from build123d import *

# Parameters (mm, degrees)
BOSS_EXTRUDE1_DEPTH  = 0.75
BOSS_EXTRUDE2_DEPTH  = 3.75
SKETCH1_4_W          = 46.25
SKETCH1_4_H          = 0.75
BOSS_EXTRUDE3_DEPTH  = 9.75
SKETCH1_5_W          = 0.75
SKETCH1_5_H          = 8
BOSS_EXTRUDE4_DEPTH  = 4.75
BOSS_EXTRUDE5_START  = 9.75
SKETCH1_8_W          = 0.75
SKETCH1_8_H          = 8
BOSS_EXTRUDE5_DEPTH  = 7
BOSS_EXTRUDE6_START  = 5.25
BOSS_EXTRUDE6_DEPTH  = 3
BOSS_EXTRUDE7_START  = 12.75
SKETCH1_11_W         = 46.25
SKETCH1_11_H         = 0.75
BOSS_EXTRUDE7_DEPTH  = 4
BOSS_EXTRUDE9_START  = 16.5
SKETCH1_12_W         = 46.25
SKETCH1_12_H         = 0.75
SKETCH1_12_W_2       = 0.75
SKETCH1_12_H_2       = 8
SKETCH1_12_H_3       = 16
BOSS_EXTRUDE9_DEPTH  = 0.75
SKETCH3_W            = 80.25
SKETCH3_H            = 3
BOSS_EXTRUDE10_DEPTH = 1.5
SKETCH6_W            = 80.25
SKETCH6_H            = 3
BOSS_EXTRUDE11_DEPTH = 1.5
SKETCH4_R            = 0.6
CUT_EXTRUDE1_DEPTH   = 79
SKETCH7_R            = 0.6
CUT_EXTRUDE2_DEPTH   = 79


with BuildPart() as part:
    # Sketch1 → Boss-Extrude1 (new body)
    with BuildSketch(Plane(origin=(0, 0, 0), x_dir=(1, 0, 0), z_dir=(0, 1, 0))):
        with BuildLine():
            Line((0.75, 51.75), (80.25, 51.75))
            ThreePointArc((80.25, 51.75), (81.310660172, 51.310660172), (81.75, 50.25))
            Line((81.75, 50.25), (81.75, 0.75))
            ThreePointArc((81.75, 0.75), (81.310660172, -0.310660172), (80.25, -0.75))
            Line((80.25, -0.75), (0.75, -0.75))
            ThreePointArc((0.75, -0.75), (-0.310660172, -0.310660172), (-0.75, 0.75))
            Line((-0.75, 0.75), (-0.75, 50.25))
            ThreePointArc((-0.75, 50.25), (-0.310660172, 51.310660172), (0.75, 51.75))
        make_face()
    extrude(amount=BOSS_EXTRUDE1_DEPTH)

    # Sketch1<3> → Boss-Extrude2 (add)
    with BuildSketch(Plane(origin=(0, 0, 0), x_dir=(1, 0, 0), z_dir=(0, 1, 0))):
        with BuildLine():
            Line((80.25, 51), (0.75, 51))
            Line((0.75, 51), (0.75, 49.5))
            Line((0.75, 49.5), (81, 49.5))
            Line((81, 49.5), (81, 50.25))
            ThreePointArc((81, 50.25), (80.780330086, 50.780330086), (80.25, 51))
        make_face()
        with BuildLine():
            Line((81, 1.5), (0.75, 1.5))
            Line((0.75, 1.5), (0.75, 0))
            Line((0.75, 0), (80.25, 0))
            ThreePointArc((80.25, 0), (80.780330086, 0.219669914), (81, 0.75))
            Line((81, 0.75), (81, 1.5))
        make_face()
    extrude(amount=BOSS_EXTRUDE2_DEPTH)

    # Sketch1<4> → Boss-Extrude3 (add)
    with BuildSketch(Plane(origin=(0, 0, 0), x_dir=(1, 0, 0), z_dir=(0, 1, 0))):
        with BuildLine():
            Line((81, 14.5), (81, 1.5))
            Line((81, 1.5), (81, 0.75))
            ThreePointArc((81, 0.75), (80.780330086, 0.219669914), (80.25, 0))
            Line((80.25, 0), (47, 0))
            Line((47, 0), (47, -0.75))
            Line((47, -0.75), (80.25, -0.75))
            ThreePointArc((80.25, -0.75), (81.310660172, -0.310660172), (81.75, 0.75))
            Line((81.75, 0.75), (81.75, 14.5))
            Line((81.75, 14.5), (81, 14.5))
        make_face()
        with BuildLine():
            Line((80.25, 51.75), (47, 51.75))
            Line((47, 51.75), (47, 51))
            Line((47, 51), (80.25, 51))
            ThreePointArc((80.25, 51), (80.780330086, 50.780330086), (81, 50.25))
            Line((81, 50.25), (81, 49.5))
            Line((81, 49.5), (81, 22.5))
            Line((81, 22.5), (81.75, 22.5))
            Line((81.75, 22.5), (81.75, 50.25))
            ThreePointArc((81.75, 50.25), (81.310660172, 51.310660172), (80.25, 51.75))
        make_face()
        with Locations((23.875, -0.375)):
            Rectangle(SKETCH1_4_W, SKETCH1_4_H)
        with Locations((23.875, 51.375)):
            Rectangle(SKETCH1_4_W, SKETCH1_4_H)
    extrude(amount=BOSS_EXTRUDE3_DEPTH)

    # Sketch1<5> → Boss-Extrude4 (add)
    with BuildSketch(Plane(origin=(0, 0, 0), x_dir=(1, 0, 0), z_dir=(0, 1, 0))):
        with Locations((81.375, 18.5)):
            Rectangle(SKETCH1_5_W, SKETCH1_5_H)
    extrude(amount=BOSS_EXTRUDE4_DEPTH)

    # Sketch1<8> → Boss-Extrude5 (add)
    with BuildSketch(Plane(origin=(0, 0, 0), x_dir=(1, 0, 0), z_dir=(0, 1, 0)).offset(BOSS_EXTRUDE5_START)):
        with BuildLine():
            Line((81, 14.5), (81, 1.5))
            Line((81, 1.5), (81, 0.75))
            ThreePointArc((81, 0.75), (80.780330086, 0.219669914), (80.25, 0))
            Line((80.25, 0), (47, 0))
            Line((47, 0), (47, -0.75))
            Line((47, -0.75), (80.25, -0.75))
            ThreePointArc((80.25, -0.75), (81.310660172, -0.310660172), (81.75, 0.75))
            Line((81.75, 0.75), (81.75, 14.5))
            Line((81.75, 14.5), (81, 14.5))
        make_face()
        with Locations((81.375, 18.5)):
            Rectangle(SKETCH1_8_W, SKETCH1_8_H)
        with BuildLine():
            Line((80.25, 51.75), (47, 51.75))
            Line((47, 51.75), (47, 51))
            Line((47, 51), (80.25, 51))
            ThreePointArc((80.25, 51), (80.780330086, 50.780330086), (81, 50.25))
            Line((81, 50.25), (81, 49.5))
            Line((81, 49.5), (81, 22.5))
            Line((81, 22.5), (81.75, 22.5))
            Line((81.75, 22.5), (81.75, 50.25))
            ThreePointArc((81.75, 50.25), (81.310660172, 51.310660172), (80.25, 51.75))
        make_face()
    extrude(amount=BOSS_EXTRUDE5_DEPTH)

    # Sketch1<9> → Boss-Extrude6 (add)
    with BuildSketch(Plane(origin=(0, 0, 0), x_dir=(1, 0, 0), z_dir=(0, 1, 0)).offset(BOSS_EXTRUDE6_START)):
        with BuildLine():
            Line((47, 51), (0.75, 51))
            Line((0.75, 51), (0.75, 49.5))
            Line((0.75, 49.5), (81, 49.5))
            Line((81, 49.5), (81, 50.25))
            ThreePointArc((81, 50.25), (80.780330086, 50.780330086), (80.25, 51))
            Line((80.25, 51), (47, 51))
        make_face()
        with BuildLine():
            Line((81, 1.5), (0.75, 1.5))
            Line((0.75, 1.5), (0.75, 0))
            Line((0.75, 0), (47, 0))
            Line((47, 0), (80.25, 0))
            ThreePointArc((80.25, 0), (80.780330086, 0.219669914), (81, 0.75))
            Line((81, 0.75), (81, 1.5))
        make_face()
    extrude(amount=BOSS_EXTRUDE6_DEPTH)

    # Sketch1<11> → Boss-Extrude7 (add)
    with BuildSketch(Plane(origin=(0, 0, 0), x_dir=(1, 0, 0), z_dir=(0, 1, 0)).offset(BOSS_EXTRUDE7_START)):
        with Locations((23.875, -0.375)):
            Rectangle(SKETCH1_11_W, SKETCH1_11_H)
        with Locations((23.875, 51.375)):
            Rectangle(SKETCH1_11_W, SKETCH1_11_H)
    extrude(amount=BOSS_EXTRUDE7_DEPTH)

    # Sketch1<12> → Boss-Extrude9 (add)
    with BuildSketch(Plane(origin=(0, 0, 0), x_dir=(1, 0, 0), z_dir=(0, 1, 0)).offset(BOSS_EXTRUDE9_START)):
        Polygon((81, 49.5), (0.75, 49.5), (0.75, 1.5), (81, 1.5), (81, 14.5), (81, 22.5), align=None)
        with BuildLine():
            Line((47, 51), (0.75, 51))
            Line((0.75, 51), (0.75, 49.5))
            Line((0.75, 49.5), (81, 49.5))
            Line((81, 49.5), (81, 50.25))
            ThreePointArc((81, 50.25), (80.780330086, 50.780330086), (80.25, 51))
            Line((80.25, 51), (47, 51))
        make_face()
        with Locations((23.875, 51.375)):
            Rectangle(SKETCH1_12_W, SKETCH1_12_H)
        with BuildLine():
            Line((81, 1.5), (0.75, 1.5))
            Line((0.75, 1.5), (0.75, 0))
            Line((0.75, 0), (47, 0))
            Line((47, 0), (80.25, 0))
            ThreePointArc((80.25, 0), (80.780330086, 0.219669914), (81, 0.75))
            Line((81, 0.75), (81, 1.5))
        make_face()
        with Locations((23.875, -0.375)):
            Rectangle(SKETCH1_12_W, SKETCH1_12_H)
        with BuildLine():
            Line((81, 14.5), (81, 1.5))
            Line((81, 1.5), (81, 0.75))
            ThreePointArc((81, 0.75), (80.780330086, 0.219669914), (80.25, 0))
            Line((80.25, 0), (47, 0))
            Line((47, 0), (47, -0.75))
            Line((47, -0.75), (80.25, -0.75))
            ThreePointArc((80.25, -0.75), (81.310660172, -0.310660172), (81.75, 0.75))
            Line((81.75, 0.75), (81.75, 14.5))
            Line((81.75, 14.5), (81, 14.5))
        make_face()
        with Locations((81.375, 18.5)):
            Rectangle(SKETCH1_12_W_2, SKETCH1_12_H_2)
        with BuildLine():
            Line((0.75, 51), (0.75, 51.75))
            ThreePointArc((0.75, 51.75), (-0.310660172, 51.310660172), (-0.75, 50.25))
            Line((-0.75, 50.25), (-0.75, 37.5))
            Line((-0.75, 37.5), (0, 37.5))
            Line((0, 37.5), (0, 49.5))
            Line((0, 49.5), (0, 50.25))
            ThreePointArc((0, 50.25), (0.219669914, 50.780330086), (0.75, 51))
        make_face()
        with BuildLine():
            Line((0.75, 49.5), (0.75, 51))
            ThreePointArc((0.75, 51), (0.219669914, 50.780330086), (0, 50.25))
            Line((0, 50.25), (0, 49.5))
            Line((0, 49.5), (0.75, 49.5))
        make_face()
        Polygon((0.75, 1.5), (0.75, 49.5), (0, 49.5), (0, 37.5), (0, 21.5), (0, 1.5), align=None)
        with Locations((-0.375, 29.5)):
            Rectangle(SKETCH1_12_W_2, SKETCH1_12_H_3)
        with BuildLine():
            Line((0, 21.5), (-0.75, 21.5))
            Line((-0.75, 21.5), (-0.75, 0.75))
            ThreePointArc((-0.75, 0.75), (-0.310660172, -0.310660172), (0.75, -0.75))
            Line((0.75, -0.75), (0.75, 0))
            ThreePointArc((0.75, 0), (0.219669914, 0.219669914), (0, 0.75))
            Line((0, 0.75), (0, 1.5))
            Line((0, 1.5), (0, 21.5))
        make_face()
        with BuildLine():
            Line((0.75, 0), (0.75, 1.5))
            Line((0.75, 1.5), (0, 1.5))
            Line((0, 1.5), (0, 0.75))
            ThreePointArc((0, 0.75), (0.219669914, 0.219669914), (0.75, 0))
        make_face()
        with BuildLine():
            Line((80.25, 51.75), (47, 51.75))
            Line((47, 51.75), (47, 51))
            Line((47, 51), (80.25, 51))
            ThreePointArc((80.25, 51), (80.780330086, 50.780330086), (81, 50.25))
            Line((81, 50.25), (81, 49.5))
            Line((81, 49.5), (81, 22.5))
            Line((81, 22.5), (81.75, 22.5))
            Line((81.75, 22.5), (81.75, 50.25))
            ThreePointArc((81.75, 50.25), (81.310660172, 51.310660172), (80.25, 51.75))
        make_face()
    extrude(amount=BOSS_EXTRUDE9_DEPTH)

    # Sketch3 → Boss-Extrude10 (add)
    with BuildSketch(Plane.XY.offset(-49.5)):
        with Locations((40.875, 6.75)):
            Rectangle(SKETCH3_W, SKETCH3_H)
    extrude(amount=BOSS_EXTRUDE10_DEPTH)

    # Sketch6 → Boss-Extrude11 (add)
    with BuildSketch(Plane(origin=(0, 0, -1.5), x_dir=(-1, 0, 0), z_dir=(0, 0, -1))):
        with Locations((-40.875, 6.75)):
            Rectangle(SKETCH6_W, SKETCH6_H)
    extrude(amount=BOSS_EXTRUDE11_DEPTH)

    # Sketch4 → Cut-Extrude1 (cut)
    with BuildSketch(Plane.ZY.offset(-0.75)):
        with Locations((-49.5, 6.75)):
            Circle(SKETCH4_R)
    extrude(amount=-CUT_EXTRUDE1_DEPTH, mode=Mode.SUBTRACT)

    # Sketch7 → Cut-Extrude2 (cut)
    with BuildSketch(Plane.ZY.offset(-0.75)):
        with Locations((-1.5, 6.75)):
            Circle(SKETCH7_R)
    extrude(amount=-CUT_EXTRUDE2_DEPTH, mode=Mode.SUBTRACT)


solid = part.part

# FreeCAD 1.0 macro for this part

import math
import FreeCAD as App
import Part
import Sketcher
from FreeCAD import Vector
Q = App.Units.Quantity

doc = App.newDocument("Part")
body = doc.addObject("PartDesign::Body", "Body")

# Sketch on XZ plane
sketch1 = body.newObject("Sketcher::SketchObject", "Sketch")
sketch1.AttachmentSupport = (doc.getObject("XZ_Plane"), [""])
sketch1.MapMode = "FlatFace"
sketch1.addGeometry(Part.LineSegment(Vector(80.2, -51.8, 0), Vector(0.8, -51.8, 0)), False)
sketch1.addGeometry(Part.ArcOfCircle(Part.Circle(Vector(0.7, -50.3, 0), Vector(0, 0, 1), 1.5), math.radians(180), math.radians(270)), False)
sketch1.addGeometry(Part.LineSegment(Vector(-0.8, -50.2, 0), Vector(-0.8, -0.8, 0)), False)
sketch1.addGeometry(Part.ArcOfCircle(Part.Circle(Vector(0.7, -0.7, 0), Vector(0, 0, 1), 1.5), math.radians(90), math.radians(180)), False)
sketch1.addGeometry(Part.LineSegment(Vector(0.8, 0.8, 0), Vector(80.2, 0.8, 0)), False)
sketch1.addGeometry(Part.ArcOfCircle(Part.Circle(Vector(80.3, -0.7, 0), Vector(0, 0, 1), 1.5), math.radians(0), math.radians(90)), False)
sketch1.addGeometry(Part.LineSegment(Vector(81.8, -0.8, 0), Vector(81.8, -50.2, 0)), False)
sketch1.addGeometry(Part.ArcOfCircle(Part.Circle(Vector(80.3, -50.3, 0), Vector(0, 0, 1), 1.5), math.radians(-90), math.radians(0)), False)
sketch1.addConstraint(Sketcher.Constraint("Tangent", 0, 2, 1, 2))
sketch1.addConstraint(Sketcher.Constraint("Tangent", 1, 1, 2, 1))
sketch1.addConstraint(Sketcher.Constraint("Tangent", 2, 2, 3, 2))
sketch1.addConstraint(Sketcher.Constraint("Tangent", 3, 1, 4, 1))
sketch1.addConstraint(Sketcher.Constraint("Tangent", 4, 2, 5, 2))
sketch1.addConstraint(Sketcher.Constraint("Tangent", 5, 1, 6, 1))
sketch1.addConstraint(Sketcher.Constraint("Tangent", 6, 2, 7, 2))
sketch1.addConstraint(Sketcher.Constraint("Tangent", 7, 1, 0, 1))
sketch1.addConstraint(Sketcher.Constraint("Horizontal", 0))
sketch1.addConstraint(Sketcher.Constraint("Vertical", 2))
sketch1.addConstraint(Sketcher.Constraint("Horizontal", 4))
sketch1.addConstraint(Sketcher.Constraint("Vertical", 6))
sketch1.addConstraint(Sketcher.Constraint("Equal", 1, 3))
sketch1.addConstraint(Sketcher.Constraint("Equal", 3, 5))
sketch1.addConstraint(Sketcher.Constraint("Equal", 5, 7))
sketch1.addConstraint(Sketcher.Constraint("Symmetric", 2, 2, 3, 1, -1, 1))
sketch1.addConstraint(Sketcher.Constraint("Radius", 1, Q("1.5 mm")))
sketch1.addConstraint(Sketcher.Constraint("DistanceX", 0, 2, 0, 1, Q("79.5 mm")))
sketch1.addConstraint(Sketcher.Constraint("DistanceY", 2, 1, 2, 2, Q("49.5 mm")))
pad1 = body.newObject("PartDesign::Pad", "Pad")
pad1.Profile = sketch1
pad1.Length = 0.75
pad1.Reversed = True

# Sketch on XZ plane
sketch2 = body.newObject("Sketcher::SketchObject", "Sketch001")
sketch2.AttachmentSupport = (doc.getObject("XZ_Plane"), [""])
sketch2.MapMode = "FlatFace"
sketch2.addGeometry(Part.LineSegment(Vector(80.2, -51, 0), Vector(0.8, -51, 0)), False)
sketch2.addGeometry(Part.LineSegment(Vector(0.8, -51, 0), Vector(0.8, -49.5, 0)), False)
sketch2.addGeometry(Part.LineSegment(Vector(0.8, -49.5, 0), Vector(81, -49.5, 0)), False)
sketch2.addGeometry(Part.LineSegment(Vector(81, -49.5, 0), Vector(81, -50.2, 0)), False)
sketch2.addGeometry(Part.ArcOfCircle(Part.Circle(Vector(80.2, -50.2, 0), Vector(0, 0, 1), 0.8), math.radians(-90), math.radians(0)), False)
sketch2.addGeometry(Part.LineSegment(Vector(81, -1.5, 0), Vector(0.8, -1.5, 0)), False)
sketch2.addGeometry(Part.LineSegment(Vector(0.8, -1.5, 0), Vector(0.8, 0, 0)), False)
sketch2.addGeometry(Part.LineSegment(Vector(0.8, 0, 0), Vector(80.2, 0, 0)), False)
sketch2.addGeometry(Part.ArcOfCircle(Part.Circle(Vector(80.2, -0.8, 0), Vector(0, 0, 1), 0.8), math.radians(0), math.radians(90)), False)
sketch2.addGeometry(Part.LineSegment(Vector(81, -0.8, 0), Vector(81, -1.5, 0)), False)
sketch2.addConstraint(Sketcher.Constraint("Coincident", 0, 2, 1, 1))
sketch2.addConstraint(Sketcher.Constraint("Coincident", 1, 2, 2, 1))
sketch2.addConstraint(Sketcher.Constraint("Coincident", 2, 2, 3, 1))
sketch2.addConstraint(Sketcher.Constraint("Tangent", 3, 2, 4, 2))
sketch2.addConstraint(Sketcher.Constraint("Tangent", 4, 1, 0, 1))
sketch2.addConstraint(Sketcher.Constraint("Coincident", 5, 2, 6, 1))
sketch2.addConstraint(Sketcher.Constraint("Coincident", 6, 2, 7, 1))
sketch2.addConstraint(Sketcher.Constraint("Tangent", 7, 2, 8, 2))
sketch2.addConstraint(Sketcher.Constraint("Tangent", 8, 1, 9, 1))
sketch2.addConstraint(Sketcher.Constraint("Coincident", 9, 2, 5, 1))
sketch2.addConstraint(Sketcher.Constraint("Horizontal", 0))
sketch2.addConstraint(Sketcher.Constraint("Vertical", 1))
sketch2.addConstraint(Sketcher.Constraint("Horizontal", 2))
sketch2.addConstraint(Sketcher.Constraint("Vertical", 3))
sketch2.addConstraint(Sketcher.Constraint("Horizontal", 5))
sketch2.addConstraint(Sketcher.Constraint("Vertical", 6))
sketch2.addConstraint(Sketcher.Constraint("Horizontal", 7))
sketch2.addConstraint(Sketcher.Constraint("Vertical", 9))
sketch2.addConstraint(Sketcher.Constraint("Equal", 4, 8))
sketch2.addConstraint(Sketcher.Constraint("PointOnObject", 6, 2, -1))
sketch2.addConstraint(Sketcher.Constraint("Vertical", 4, 3, 8, 3))
sketch2.addConstraint(Sketcher.Constraint("Vertical", 1, 2, 5, 2))
sketch2.addConstraint(Sketcher.Constraint("Equal", 1, 6))
sketch2.addConstraint(Sketcher.Constraint("Radius", 4, Q("0.75 mm")))
sketch2.addConstraint(Sketcher.Constraint("DistanceX", 0, 2, 0, 1, Q("79.5 mm")))
sketch2.addConstraint(Sketcher.Constraint("DistanceY", 1, 1, 1, 2, Q("1.5 mm")))
sketch2.addConstraint(Sketcher.Constraint("DistanceY", 0, 2, -1, 1, Q("51 mm")))
sketch2.addConstraint(Sketcher.Constraint("DistanceX", -1, 1, 2, 2, Q("81 mm")))
pad2 = body.newObject("PartDesign::Pad", "Pad001")
pad2.Profile = sketch2
pad2.Length = 3.75
pad2.Reversed = True

# Sketch on XZ plane
sketch3 = body.newObject("Sketcher::SketchObject", "Sketch002")
sketch3.AttachmentSupport = (doc.getObject("XZ_Plane"), [""])
sketch3.MapMode = "FlatFace"
sketch3.addGeometry(Part.LineSegment(Vector(81, -14.5, 0), Vector(81, -0.8, 0)), False)
sketch3.addGeometry(Part.ArcOfCircle(Part.Circle(Vector(80.2, -0.8, 0), Vector(0, 0, 1), 0.8), math.radians(0), math.radians(90)), False)
sketch3.addGeometry(Part.LineSegment(Vector(80.2, 0, 0), Vector(0.8, 0, 0)), False)
sketch3.addGeometry(Part.LineSegment(Vector(0.8, 0, 0), Vector(0.8, 0.8, 0)), False)
sketch3.addGeometry(Part.LineSegment(Vector(0.8, 0.8, 0), Vector(80.2, 0.8, 0)), False)
sketch3.addGeometry(Part.ArcOfCircle(Part.Circle(Vector(80.3, -0.7, 0), Vector(0, 0, 1), 1.5), math.radians(0), math.radians(90)), False)
sketch3.addGeometry(Part.LineSegment(Vector(81.8, -0.8, 0), Vector(81.8, -14.5, 0)), False)
sketch3.addGeometry(Part.LineSegment(Vector(81.8, -14.5, 0), Vector(81, -14.5, 0)), False)
sketch3.addGeometry(Part.LineSegment(Vector(80.2, -51.8, 0), Vector(0.8, -51.8, 0)), False)
sketch3.addGeometry(Part.LineSegment(Vector(0.8, -51.8, 0), Vector(0.8, -51, 0)), False)
sketch3.addGeometry(Part.LineSegment(Vector(0.8, -51, 0), Vector(80.2, -51, 0)), False)
sketch3.addGeometry(Part.ArcOfCircle(Part.Circle(Vector(80.2, -50.2, 0), Vector(0, 0, 1), 0.8), math.radians(-90), math.radians(0)), False)
sketch3.addGeometry(Part.LineSegment(Vector(81, -50.2, 0), Vector(81, -22.5, 0)), False)
sketch3.addGeometry(Part.LineSegment(Vector(81, -22.5, 0), Vector(81.8, -22.5, 0)), False)
sketch3.addGeometry(Part.LineSegment(Vector(81.8, -22.5, 0), Vector(81.8, -50.2, 0)), False)
sketch3.addGeometry(Part.ArcOfCircle(Part.Circle(Vector(80.3, -50.3, 0), Vector(0, 0, 1), 1.5), math.radians(-90), math.radians(0)), False)
sketch3.addConstraint(Sketcher.Constraint("Tangent", 0, 2, 1, 1))
sketch3.addConstraint(Sketcher.Constraint("Tangent", 1, 2, 2, 1))
sketch3.addConstraint(Sketcher.Constraint("Coincident", 2, 2, 3, 1))
sketch3.addConstraint(Sketcher.Constraint("Coincident", 3, 2, 4, 1))
sketch3.addConstraint(Sketcher.Constraint("Tangent", 4, 2, 5, 2))
sketch3.addConstraint(Sketcher.Constraint("Tangent", 5, 1, 6, 1))
sketch3.addConstraint(Sketcher.Constraint("Coincident", 6, 2, 7, 1))
sketch3.addConstraint(Sketcher.Constraint("Coincident", 7, 2, 0, 1))
sketch3.addConstraint(Sketcher.Constraint("Coincident", 8, 2, 9, 1))
sketch3.addConstraint(Sketcher.Constraint("Coincident", 9, 2, 10, 1))
sketch3.addConstraint(Sketcher.Constraint("Tangent", 10, 2, 11, 1))
sketch3.addConstraint(Sketcher.Constraint("Tangent", 11, 2, 12, 1))
sketch3.addConstraint(Sketcher.Constraint("Coincident", 12, 2, 13, 1))
sketch3.addConstraint(Sketcher.Constraint("Coincident", 13, 2, 14, 1))
sketch3.addConstraint(Sketcher.Constraint("Tangent", 14, 2, 15, 2))
sketch3.addConstraint(Sketcher.Constraint("Tangent", 15, 1, 8, 1))
sketch3.addConstraint(Sketcher.Constraint("Vertical", 0))
sketch3.addConstraint(Sketcher.Constraint("Horizontal", 2))
sketch3.addConstraint(Sketcher.Constraint("Vertical", 3))
sketch3.addConstraint(Sketcher.Constraint("Horizontal", 4))
sketch3.addConstraint(Sketcher.Constraint("Vertical", 6))
sketch3.addConstraint(Sketcher.Constraint("Horizontal", 7))
sketch3.addConstraint(Sketcher.Constraint("Horizontal", 8))
sketch3.addConstraint(Sketcher.Constraint("Vertical", 9))
sketch3.addConstraint(Sketcher.Constraint("Horizontal", 10))
sketch3.addConstraint(Sketcher.Constraint("Vertical", 12))
sketch3.addConstraint(Sketcher.Constraint("Horizontal", 13))
sketch3.addConstraint(Sketcher.Constraint("Vertical", 14))
sketch3.addConstraint(Sketcher.Constraint("Coincident", 5, 3, 1, 3))
sketch3.addConstraint(Sketcher.Constraint("Coincident", 15, 3, 11, 3))
sketch3.addConstraint(Sketcher.Constraint("Equal", 1, 11))
sketch3.addConstraint(Sketcher.Constraint("Equal", 5, 15))
sketch3.addConstraint(Sketcher.Constraint("PointOnObject", 1, 2, -1))
sketch3.addConstraint(Sketcher.Constraint("Vertical", 5, 3, 11, 3))
sketch3.addConstraint(Sketcher.Constraint("Vertical", 3, 2, 8, 2))
sketch3.addConstraint(Sketcher.Constraint("Radius", 5, Q("1.5 mm")))
sketch3.addConstraint(Sketcher.Constraint("Radius", 1, Q("0.75 mm")))
sketch3.addConstraint(Sketcher.Constraint("DistanceX", 2, 2, 2, 1, Q("79.5 mm")))
sketch3.addConstraint(Sketcher.Constraint("DistanceX", -1, 1, 0, 2, Q("81 mm")))
sketch3.addConstraint(Sketcher.Constraint("DistanceY", 9, 2, -1, 1, Q("51 mm")))
sketch3.addConstraint(Sketcher.Constraint("DistanceY", 12, 2, 7, 2, Q("8 mm")))
sketch3.addConstraint(Sketcher.Constraint("DistanceY", 0, 1, 0, 2, Q("13.75 mm")))
pad3 = body.newObject("PartDesign::Pad", "Pad002")
pad3.Profile = sketch3
pad3.Length = 9.75
pad3.Reversed = True

# Sketch on XZ plane
sketch4 = body.newObject("Sketcher::SketchObject", "Sketch003")
sketch4.AttachmentSupport = (doc.getObject("XZ_Plane"), [""])
sketch4.MapMode = "FlatFace"
sketch4.addGeometry(Part.LineSegment(Vector(81, -22.5, 0), Vector(81, -14.5, 0)), False)
sketch4.addGeometry(Part.LineSegment(Vector(81, -14.5, 0), Vector(81.8, -14.5, 0)), False)
sketch4.addGeometry(Part.LineSegment(Vector(81.8, -14.5, 0), Vector(81.8, -22.5, 0)), False)
sketch4.addGeometry(Part.LineSegment(Vector(81.8, -22.5, 0), Vector(81, -22.5, 0)), False)
sketch4.addConstraint(Sketcher.Constraint("Coincident", 0, 2, 1, 1))
sketch4.addConstraint(Sketcher.Constraint("Coincident", 1, 2, 2, 1))
sketch4.addConstraint(Sketcher.Constraint("Coincident", 2, 2, 3, 1))
sketch4.addConstraint(Sketcher.Constraint("Coincident", 3, 2, 0, 1))
sketch4.addConstraint(Sketcher.Constraint("Vertical", 0))
sketch4.addConstraint(Sketcher.Constraint("Horizontal", 1))
sketch4.addConstraint(Sketcher.Constraint("Vertical", 2))
sketch4.addConstraint(Sketcher.Constraint("Horizontal", 3))
sketch4.addConstraint(Sketcher.Constraint("DistanceY", 0, 1, 0, 2, Q("8 mm")))
sketch4.addConstraint(Sketcher.Constraint("DistanceX", -1, 1, 0, 2, Q("81 mm")))
sketch4.addConstraint(Sketcher.Constraint("DistanceX", 1, 1, 1, 2, Q("0.75 mm")))
sketch4.addConstraint(Sketcher.Constraint("DistanceY", 0, 2, -1, 1, Q("14.5 mm")))
pad4 = body.newObject("PartDesign::Pad", "Pad003")
pad4.Profile = sketch4
pad4.Length = 4.75
pad4.Reversed = True

# Sketch on XZ plane
sketch5 = body.newObject("Sketcher::SketchObject", "Sketch004")
sketch5.AttachmentSupport = (doc.getObject("XZ_Plane"), [""])
sketch5.MapMode = "FlatFace"
sketch5.AttachmentOffset = App.Placement(Vector(0, 0, -9.75), App.Rotation())
sketch5.addGeometry(Part.ArcOfCircle(Part.Circle(Vector(80.2, -0.8, 0), Vector(0, 0, 1), 0.8), math.radians(0), math.radians(90)), False)
sketch5.addGeometry(Part.LineSegment(Vector(80.2, 0, 0), Vector(47, 0, 0)), False)
sketch5.addGeometry(Part.LineSegment(Vector(47, 0, 0), Vector(47, 0.8, 0)), False)
sketch5.addGeometry(Part.LineSegment(Vector(47, 0.8, 0), Vector(80.2, 0.8, 0)), False)
sketch5.addGeometry(Part.ArcOfCircle(Part.Circle(Vector(80.3, -0.7, 0), Vector(0, 0, 1), 1.5), math.radians(0), math.radians(90)), False)
sketch5.addGeometry(Part.LineSegment(Vector(81.8, -0.8, 0), Vector(81.8, -50.2, 0)), False)
sketch5.addGeometry(Part.ArcOfCircle(Part.Circle(Vector(80.3, -50.3, 0), Vector(0, 0, 1), 1.5), math.radians(-90), math.radians(0)), False)
sketch5.addGeometry(Part.LineSegment(Vector(80.2, -51.8, 0), Vector(47, -51.8, 0)), False)
sketch5.addGeometry(Part.LineSegment(Vector(47, -51.8, 0), Vector(47, -51, 0)), False)
sketch5.addGeometry(Part.LineSegment(Vector(47, -51, 0), Vector(80.2, -51, 0)), False)
sketch5.addGeometry(Part.ArcOfCircle(Part.Circle(Vector(80.2, -50.2, 0), Vector(0, 0, 1), 0.8), math.radians(-90), math.radians(0)), False)
sketch5.addGeometry(Part.LineSegment(Vector(81, -50.2, 0), Vector(81, -0.8, 0)), False)
sketch5.addConstraint(Sketcher.Constraint("Tangent", 0, 2, 1, 1))
sketch5.addConstraint(Sketcher.Constraint("Coincident", 1, 2, 2, 1))
sketch5.addConstraint(Sketcher.Constraint("Coincident", 2, 2, 3, 1))
sketch5.addConstraint(Sketcher.Constraint("Tangent", 3, 2, 4, 2))
sketch5.addConstraint(Sketcher.Constraint("Tangent", 4, 1, 5, 1))
sketch5.addConstraint(Sketcher.Constraint("Tangent", 5, 2, 6, 2))
sketch5.addConstraint(Sketcher.Constraint("Tangent", 6, 1, 7, 1))
sketch5.addConstraint(Sketcher.Constraint("Coincident", 7, 2, 8, 1))
sketch5.addConstraint(Sketcher.Constraint("Coincident", 8, 2, 9, 1))
sketch5.addConstraint(Sketcher.Constraint("Tangent", 9, 2, 10, 1))
sketch5.addConstraint(Sketcher.Constraint("Tangent", 10, 2, 11, 1))
sketch5.addConstraint(Sketcher.Constraint("Tangent", 11, 2, 0, 1))
sketch5.addConstraint(Sketcher.Constraint("Horizontal", 1))
sketch5.addConstraint(Sketcher.Constraint("Vertical", 2))
sketch5.addConstraint(Sketcher.Constraint("Horizontal", 3))
sketch5.addConstraint(Sketcher.Constraint("Vertical", 5))
sketch5.addConstraint(Sketcher.Constraint("Horizontal", 7))
sketch5.addConstraint(Sketcher.Constraint("Vertical", 8))
sketch5.addConstraint(Sketcher.Constraint("Horizontal", 9))
sketch5.addConstraint(Sketcher.Constraint("Vertical", 11))
sketch5.addConstraint(Sketcher.Constraint("Coincident", 4, 3, 0, 3))
sketch5.addConstraint(Sketcher.Constraint("Coincident", 10, 3, 6, 3))
sketch5.addConstraint(Sketcher.Constraint("Equal", 4, 6))
sketch5.addConstraint(Sketcher.Constraint("PointOnObject", 0, 2, -1))
sketch5.addConstraint(Sketcher.Constraint("Vertical", 2, 2, 7, 2))
sketch5.addConstraint(Sketcher.Constraint("Radius", 4, Q("1.5 mm")))
sketch5.addConstraint(Sketcher.Constraint("Radius", 0, Q("0.75 mm")))
sketch5.addConstraint(Sketcher.Constraint("DistanceY", 5, 2, 5, 1, Q("49.5 mm")))
sketch5.addConstraint(Sketcher.Constraint("DistanceX", -1, 1, 1, 2, Q("47 mm")))
sketch5.addConstraint(Sketcher.Constraint("DistanceX", -1, 1, 10, 2, Q("81 mm")))
pad5 = body.newObject("PartDesign::Pad", "Pad004")
pad5.Profile = sketch5
pad5.Length = 7
pad5.Reversed = True

# Sketch on XZ plane
sketch6 = body.newObject("Sketcher::SketchObject", "Sketch005")
sketch6.AttachmentSupport = (doc.getObject("XZ_Plane"), [""])
sketch6.MapMode = "FlatFace"
sketch6.AttachmentOffset = App.Placement(Vector(0, 0, -5.25), App.Rotation())
sketch6.addGeometry(Part.LineSegment(Vector(0.8, -51, 0), Vector(0.8, -49.5, 0)), False)
sketch6.addGeometry(Part.LineSegment(Vector(0.8, -49.5, 0), Vector(81, -49.5, 0)), False)
sketch6.addGeometry(Part.LineSegment(Vector(81, -49.5, 0), Vector(81, -50.2, 0)), False)
sketch6.addGeometry(Part.ArcOfCircle(Part.Circle(Vector(80.2, -50.2, 0), Vector(0, 0, 1), 0.8), math.radians(-90), math.radians(0)), False)
sketch6.addGeometry(Part.LineSegment(Vector(80.2, -51, 0), Vector(0.8, -51, 0)), False)
sketch6.addGeometry(Part.LineSegment(Vector(81, -1.5, 0), Vector(0.8, -1.5, 0)), False)
sketch6.addGeometry(Part.LineSegment(Vector(0.8, -1.5, 0), Vector(0.8, 0, 0)), False)
sketch6.addGeometry(Part.LineSegment(Vector(0.8, 0, 0), Vector(80.2, 0, 0)), False)
sketch6.addGeometry(Part.ArcOfCircle(Part.Circle(Vector(80.2, -0.8, 0), Vector(0, 0, 1), 0.8), math.radians(0), math.radians(90)), False)
sketch6.addGeometry(Part.LineSegment(Vector(81, -0.8, 0), Vector(81, -1.5, 0)), False)
sketch6.addConstraint(Sketcher.Constraint("Coincident", 0, 2, 1, 1))
sketch6.addConstraint(Sketcher.Constraint("Coincident", 1, 2, 2, 1))
sketch6.addConstraint(Sketcher.Constraint("Tangent", 2, 2, 3, 2))
sketch6.addConstraint(Sketcher.Constraint("Tangent", 3, 1, 4, 1))
sketch6.addConstraint(Sketcher.Constraint("Coincident", 4, 2, 0, 1))
sketch6.addConstraint(Sketcher.Constraint("Coincident", 5, 2, 6, 1))
sketch6.addConstraint(Sketcher.Constraint("Coincident", 6, 2, 7, 1))
sketch6.addConstraint(Sketcher.Constraint("Tangent", 7, 2, 8, 2))
sketch6.addConstraint(Sketcher.Constraint("Tangent", 8, 1, 9, 1))
sketch6.addConstraint(Sketcher.Constraint("Coincident", 9, 2, 5, 1))
sketch6.addConstraint(Sketcher.Constraint("Vertical", 0))
sketch6.addConstraint(Sketcher.Constraint("Horizontal", 1))
sketch6.addConstraint(Sketcher.Constraint("Vertical", 2))
sketch6.addConstraint(Sketcher.Constraint("Horizontal", 4))
sketch6.addConstraint(Sketcher.Constraint("Horizontal", 5))
sketch6.addConstraint(Sketcher.Constraint("Vertical", 6))
sketch6.addConstraint(Sketcher.Constraint("Horizontal", 7))
sketch6.addConstraint(Sketcher.Constraint("Vertical", 9))
sketch6.addConstraint(Sketcher.Constraint("Equal", 3, 8))
sketch6.addConstraint(Sketcher.Constraint("PointOnObject", 6, 2, -1))
sketch6.addConstraint(Sketcher.Constraint("Vertical", 3, 3, 8, 3))
sketch6.addConstraint(Sketcher.Constraint("Vertical", 4, 2, 5, 2))
sketch6.addConstraint(Sketcher.Constraint("Equal", 0, 6))
sketch6.addConstraint(Sketcher.Constraint("Radius", 3, Q("0.75 mm")))
sketch6.addConstraint(Sketcher.Constraint("DistanceX", 4, 2, 4, 1, Q("79.5 mm")))
sketch6.addConstraint(Sketcher.Constraint("DistanceY", 0, 1, 0, 2, Q("1.5 mm")))
sketch6.addConstraint(Sketcher.Constraint("DistanceX", -1, 1, 1, 2, Q("81 mm")))
sketch6.addConstraint(Sketcher.Constraint("DistanceY", 3, 1, -1, 1, Q("51 mm")))
pad6 = body.newObject("PartDesign::Pad", "Pad005")
pad6.Profile = sketch6
pad6.Length = 3
pad6.Reversed = True

# Sketch on XZ plane
sketch7 = body.newObject("Sketcher::SketchObject", "Sketch006")
sketch7.AttachmentSupport = (doc.getObject("XZ_Plane"), [""])
sketch7.MapMode = "FlatFace"
sketch7.AttachmentOffset = App.Placement(Vector(0, 0, -12.75), App.Rotation())
sketch7.addGeometry(Part.LineSegment(Vector(0.8, 0, 0), Vector(0.8, 0.8, 0)), False)
sketch7.addGeometry(Part.LineSegment(Vector(0.8, 0.8, 0), Vector(47, 0.8, 0)), False)
sketch7.addGeometry(Part.LineSegment(Vector(47, 0.8, 0), Vector(47, 0, 0)), False)
sketch7.addGeometry(Part.LineSegment(Vector(47, 0, 0), Vector(0.8, 0, 0)), False)
sketch7.addGeometry(Part.LineSegment(Vector(0.8, -51.8, 0), Vector(0.8, -51, 0)), False)
sketch7.addGeometry(Part.LineSegment(Vector(0.8, -51, 0), Vector(47, -51, 0)), False)
sketch7.addGeometry(Part.LineSegment(Vector(47, -51, 0), Vector(47, -51.8, 0)), False)
sketch7.addGeometry(Part.LineSegment(Vector(47, -51.8, 0), Vector(0.8, -51.8, 0)), False)
sketch7.addConstraint(Sketcher.Constraint("Coincident", 0, 2, 1, 1))
sketch7.addConstraint(Sketcher.Constraint("Coincident", 1, 2, 2, 1))
sketch7.addConstraint(Sketcher.Constraint("Coincident", 2, 2, 3, 1))
sketch7.addConstraint(Sketcher.Constraint("Coincident", 3, 2, 0, 1))
sketch7.addConstraint(Sketcher.Constraint("Coincident", 4, 2, 5, 1))
sketch7.addConstraint(Sketcher.Constraint("Coincident", 5, 2, 6, 1))
sketch7.addConstraint(Sketcher.Constraint("Coincident", 6, 2, 7, 1))
sketch7.addConstraint(Sketcher.Constraint("Coincident", 7, 2, 4, 1))
sketch7.addConstraint(Sketcher.Constraint("Vertical", 0))
sketch7.addConstraint(Sketcher.Constraint("Horizontal", 1))
sketch7.addConstraint(Sketcher.Constraint("Vertical", 2))
sketch7.addConstraint(Sketcher.Constraint("Horizontal", 3))
sketch7.addConstraint(Sketcher.Constraint("Vertical", 4))
sketch7.addConstraint(Sketcher.Constraint("Horizontal", 5))
sketch7.addConstraint(Sketcher.Constraint("Vertical", 6))
sketch7.addConstraint(Sketcher.Constraint("Horizontal", 7))
sketch7.addConstraint(Sketcher.Constraint("PointOnObject", 2, 2, -1))
sketch7.addConstraint(Sketcher.Constraint("Vertical", 3, 2, 4, 2))
sketch7.addConstraint(Sketcher.Constraint("Vertical", 2, 2, 5, 2))
sketch7.addConstraint(Sketcher.Constraint("Equal", 2, 4))
sketch7.addConstraint(Sketcher.Constraint("DistanceX", -1, 1, 1, 2, Q("47 mm")))
sketch7.addConstraint(Sketcher.Constraint("DistanceY", 4, 2, -1, 1, Q("51 mm")))
sketch7.addConstraint(Sketcher.Constraint("DistanceX", 1, 1, 1, 2, Q("46.25 mm")))
sketch7.addConstraint(Sketcher.Constraint("DistanceY", 0, 1, 0, 2, Q("0.75 mm")))
pad7 = body.newObject("PartDesign::Pad", "Pad006")
pad7.Profile = sketch7
pad7.Length = 4
pad7.Reversed = True

# Sketch on XZ plane
sketch8 = body.newObject("Sketcher::SketchObject", "Sketch007")
sketch8.AttachmentSupport = (doc.getObject("XZ_Plane"), [""])
sketch8.MapMode = "FlatFace"
sketch8.AttachmentOffset = App.Placement(Vector(0, 0, -16.5), App.Rotation())
sketch8.addGeometry(Part.ArcOfCircle(Part.Circle(Vector(0.7, -50.3, 0), Vector(0, 0, 1), 1.5), math.radians(180), math.radians(270)), False)
sketch8.addGeometry(Part.LineSegment(Vector(-0.8, -50.2, 0), Vector(-0.8, -0.8, 0)), False)
sketch8.addGeometry(Part.ArcOfCircle(Part.Circle(Vector(0.7, -0.7, 0), Vector(0, 0, 1), 1.5), math.radians(90), math.radians(180)), False)
sketch8.addGeometry(Part.LineSegment(Vector(0.8, 0.8, 0), Vector(80.2, 0.8, 0)), False)
sketch8.addGeometry(Part.ArcOfCircle(Part.Circle(Vector(80.3, -0.7, 0), Vector(0, 0, 1), 1.5), math.radians(0), math.radians(90)), False)
sketch8.addGeometry(Part.LineSegment(Vector(81.8, -0.8, 0), Vector(81.8, -50.2, 0)), False)
sketch8.addGeometry(Part.ArcOfCircle(Part.Circle(Vector(80.3, -50.3, 0), Vector(0, 0, 1), 1.5), math.radians(-90), math.radians(0)), False)
sketch8.addGeometry(Part.LineSegment(Vector(80.2, -51.8, 0), Vector(0.8, -51.8, 0)), False)
sketch8.addConstraint(Sketcher.Constraint("Tangent", 0, 1, 1, 1))
sketch8.addConstraint(Sketcher.Constraint("Tangent", 1, 2, 2, 2))
sketch8.addConstraint(Sketcher.Constraint("Tangent", 2, 1, 3, 1))
sketch8.addConstraint(Sketcher.Constraint("Tangent", 3, 2, 4, 2))
sketch8.addConstraint(Sketcher.Constraint("Tangent", 4, 1, 5, 1))
sketch8.addConstraint(Sketcher.Constraint("Tangent", 5, 2, 6, 2))
sketch8.addConstraint(Sketcher.Constraint("Tangent", 6, 1, 7, 1))
sketch8.addConstraint(Sketcher.Constraint("Tangent", 7, 2, 0, 2))
sketch8.addConstraint(Sketcher.Constraint("Vertical", 1))
sketch8.addConstraint(Sketcher.Constraint("Horizontal", 3))
sketch8.addConstraint(Sketcher.Constraint("Vertical", 5))
sketch8.addConstraint(Sketcher.Constraint("Horizontal", 7))
sketch8.addConstraint(Sketcher.Constraint("Equal", 0, 2))
sketch8.addConstraint(Sketcher.Constraint("Equal", 2, 4))
sketch8.addConstraint(Sketcher.Constraint("Equal", 4, 6))
sketch8.addConstraint(Sketcher.Constraint("Symmetric", 1, 2, 2, 1, -1, 1))
sketch8.addConstraint(Sketcher.Constraint("Radius", 0, Q("1.5 mm")))
sketch8.addConstraint(Sketcher.Constraint("DistanceX", 3, 1, 3, 2, Q("79.5 mm")))
sketch8.addConstraint(Sketcher.Constraint("DistanceY", 1, 1, 1, 2, Q("49.5 mm")))
pad8 = body.newObject("PartDesign::Pad", "Pad007")
pad8.Profile = sketch8
pad8.Length = 0.75
pad8.Reversed = True

# Sketch on XY plane
sketch9 = body.newObject("Sketcher::SketchObject", "Sketch008")
sketch9.AttachmentSupport = (doc.getObject("XY_Plane"), [""])
sketch9.MapMode = "FlatFace"
sketch9.AttachmentOffset = App.Placement(Vector(0, 0, -49.5), App.Rotation())
sketch9.addGeometry(Part.LineSegment(Vector(0.8, 8.2, 0), Vector(0.8, 5.2, 0)), False)
sketch9.addGeometry(Part.LineSegment(Vector(0.8, 5.2, 0), Vector(81, 5.2, 0)), False)
sketch9.addGeometry(Part.LineSegment(Vector(81, 5.2, 0), Vector(81, 8.2, 0)), False)
sketch9.addGeometry(Part.LineSegment(Vector(81, 8.2, 0), Vector(0.8, 8.2, 0)), False)
sketch9.addConstraint(Sketcher.Constraint("Coincident", 0, 2, 1, 1))
sketch9.addConstraint(Sketcher.Constraint("Coincident", 1, 2, 2, 1))
sketch9.addConstraint(Sketcher.Constraint("Coincident", 2, 2, 3, 1))
sketch9.addConstraint(Sketcher.Constraint("Coincident", 3, 2, 0, 1))
sketch9.addConstraint(Sketcher.Constraint("Vertical", 0))
sketch9.addConstraint(Sketcher.Constraint("Horizontal", 1))
sketch9.addConstraint(Sketcher.Constraint("Vertical", 2))
sketch9.addConstraint(Sketcher.Constraint("Horizontal", 3))
sketch9.addConstraint(Sketcher.Constraint("DistanceY", 0, 2, 0, 1, Q("3 mm")))
sketch9.addConstraint(Sketcher.Constraint("DistanceX", -1, 1, 1, 2, Q("81 mm")))
sketch9.addConstraint(Sketcher.Constraint("DistanceX", 1, 1, 1, 2, Q("80.25 mm")))
sketch9.addConstraint(Sketcher.Constraint("DistanceY", -1, 1, 0, 2, Q("5.25 mm")))
pad9 = body.newObject("PartDesign::Pad", "Pad008")
pad9.Profile = sketch9
pad9.Length = 1.5

# Sketch on XY plane
sketch10 = body.newObject("Sketcher::SketchObject", "Sketch009")
sketch10.AttachmentSupport = (doc.getObject("XY_Plane"), [""])
sketch10.MapMode = "FlatFace"
sketch10.AttachmentOffset = App.Placement(Vector(0, 0, -1.5), App.Rotation())
sketch10.addGeometry(Part.LineSegment(Vector(81, 8.2, 0), Vector(81, 5.2, 0)), False)
sketch10.addGeometry(Part.LineSegment(Vector(81, 5.2, 0), Vector(0.8, 5.2, 0)), False)
sketch10.addGeometry(Part.LineSegment(Vector(0.8, 5.2, 0), Vector(0.8, 8.2, 0)), False)
sketch10.addGeometry(Part.LineSegment(Vector(0.8, 8.2, 0), Vector(81, 8.2, 0)), False)
sketch10.addConstraint(Sketcher.Constraint("Coincident", 0, 2, 1, 1))
sketch10.addConstraint(Sketcher.Constraint("Coincident", 1, 2, 2, 1))
sketch10.addConstraint(Sketcher.Constraint("Coincident", 2, 2, 3, 1))
sketch10.addConstraint(Sketcher.Constraint("Coincident", 3, 2, 0, 1))
sketch10.addConstraint(Sketcher.Constraint("Vertical", 0))
sketch10.addConstraint(Sketcher.Constraint("Horizontal", 1))
sketch10.addConstraint(Sketcher.Constraint("Vertical", 2))
sketch10.addConstraint(Sketcher.Constraint("Horizontal", 3))
sketch10.addConstraint(Sketcher.Constraint("DistanceY", 0, 2, 0, 1, Q("3 mm")))
sketch10.addConstraint(Sketcher.Constraint("DistanceX", -1, 1, 0, 2, Q("81 mm")))
sketch10.addConstraint(Sketcher.Constraint("DistanceX", 1, 2, 1, 1, Q("80.25 mm")))
sketch10.addConstraint(Sketcher.Constraint("DistanceY", -1, 1, 0, 2, Q("5.25 mm")))
pad10 = body.newObject("PartDesign::Pad", "Pad009")
pad10.Profile = sketch10
pad10.Length = 1.5
pad10.Reversed = True

# Sketch on YZ plane
sketch11 = body.newObject("Sketcher::SketchObject", "Sketch010")
sketch11.AttachmentSupport = (doc.getObject("YZ_Plane"), [""])
sketch11.MapMode = "FlatFace"
sketch11.AttachmentOffset = App.Placement(Vector(0, 0, 0.75), App.Rotation())
sketch11.addGeometry(Part.Circle(Vector(6.8, -49.5, 0), Vector(0, 0, 1), 0.6), False)
sketch11.addConstraint(Sketcher.Constraint("Diameter", 0, Q("1.2 mm")))
sketch11.addConstraint(Sketcher.Constraint("DistanceY", 0, 3, -1, 1, Q("49.5 mm")))
sketch11.addConstraint(Sketcher.Constraint("DistanceX", -1, 1, 0, 3, Q("6.75 mm")))
pocket1 = body.newObject("PartDesign::Pocket", "Pocket")
pocket1.Profile = sketch11
pocket1.Length = 79
pocket1.Reversed = True

# Sketch on YZ plane
sketch12 = body.newObject("Sketcher::SketchObject", "Sketch011")
sketch12.AttachmentSupport = (doc.getObject("YZ_Plane"), [""])
sketch12.MapMode = "FlatFace"
sketch12.AttachmentOffset = App.Placement(Vector(0, 0, 0.75), App.Rotation())
sketch12.addGeometry(Part.Circle(Vector(6.8, -1.5, 0), Vector(0, 0, 1), 0.6), False)
sketch12.addConstraint(Sketcher.Constraint("Diameter", 0, Q("1.2 mm")))
sketch12.addConstraint(Sketcher.Constraint("DistanceY", 0, 3, -1, 1, Q("1.5 mm")))
sketch12.addConstraint(Sketcher.Constraint("DistanceX", -1, 1, 0, 3, Q("6.75 mm")))
pocket2 = body.newObject("PartDesign::Pocket", "Pocket001")
pocket2.Profile = sketch12
pocket2.Length = 79
pocket2.Reversed = True

doc.recompute()
